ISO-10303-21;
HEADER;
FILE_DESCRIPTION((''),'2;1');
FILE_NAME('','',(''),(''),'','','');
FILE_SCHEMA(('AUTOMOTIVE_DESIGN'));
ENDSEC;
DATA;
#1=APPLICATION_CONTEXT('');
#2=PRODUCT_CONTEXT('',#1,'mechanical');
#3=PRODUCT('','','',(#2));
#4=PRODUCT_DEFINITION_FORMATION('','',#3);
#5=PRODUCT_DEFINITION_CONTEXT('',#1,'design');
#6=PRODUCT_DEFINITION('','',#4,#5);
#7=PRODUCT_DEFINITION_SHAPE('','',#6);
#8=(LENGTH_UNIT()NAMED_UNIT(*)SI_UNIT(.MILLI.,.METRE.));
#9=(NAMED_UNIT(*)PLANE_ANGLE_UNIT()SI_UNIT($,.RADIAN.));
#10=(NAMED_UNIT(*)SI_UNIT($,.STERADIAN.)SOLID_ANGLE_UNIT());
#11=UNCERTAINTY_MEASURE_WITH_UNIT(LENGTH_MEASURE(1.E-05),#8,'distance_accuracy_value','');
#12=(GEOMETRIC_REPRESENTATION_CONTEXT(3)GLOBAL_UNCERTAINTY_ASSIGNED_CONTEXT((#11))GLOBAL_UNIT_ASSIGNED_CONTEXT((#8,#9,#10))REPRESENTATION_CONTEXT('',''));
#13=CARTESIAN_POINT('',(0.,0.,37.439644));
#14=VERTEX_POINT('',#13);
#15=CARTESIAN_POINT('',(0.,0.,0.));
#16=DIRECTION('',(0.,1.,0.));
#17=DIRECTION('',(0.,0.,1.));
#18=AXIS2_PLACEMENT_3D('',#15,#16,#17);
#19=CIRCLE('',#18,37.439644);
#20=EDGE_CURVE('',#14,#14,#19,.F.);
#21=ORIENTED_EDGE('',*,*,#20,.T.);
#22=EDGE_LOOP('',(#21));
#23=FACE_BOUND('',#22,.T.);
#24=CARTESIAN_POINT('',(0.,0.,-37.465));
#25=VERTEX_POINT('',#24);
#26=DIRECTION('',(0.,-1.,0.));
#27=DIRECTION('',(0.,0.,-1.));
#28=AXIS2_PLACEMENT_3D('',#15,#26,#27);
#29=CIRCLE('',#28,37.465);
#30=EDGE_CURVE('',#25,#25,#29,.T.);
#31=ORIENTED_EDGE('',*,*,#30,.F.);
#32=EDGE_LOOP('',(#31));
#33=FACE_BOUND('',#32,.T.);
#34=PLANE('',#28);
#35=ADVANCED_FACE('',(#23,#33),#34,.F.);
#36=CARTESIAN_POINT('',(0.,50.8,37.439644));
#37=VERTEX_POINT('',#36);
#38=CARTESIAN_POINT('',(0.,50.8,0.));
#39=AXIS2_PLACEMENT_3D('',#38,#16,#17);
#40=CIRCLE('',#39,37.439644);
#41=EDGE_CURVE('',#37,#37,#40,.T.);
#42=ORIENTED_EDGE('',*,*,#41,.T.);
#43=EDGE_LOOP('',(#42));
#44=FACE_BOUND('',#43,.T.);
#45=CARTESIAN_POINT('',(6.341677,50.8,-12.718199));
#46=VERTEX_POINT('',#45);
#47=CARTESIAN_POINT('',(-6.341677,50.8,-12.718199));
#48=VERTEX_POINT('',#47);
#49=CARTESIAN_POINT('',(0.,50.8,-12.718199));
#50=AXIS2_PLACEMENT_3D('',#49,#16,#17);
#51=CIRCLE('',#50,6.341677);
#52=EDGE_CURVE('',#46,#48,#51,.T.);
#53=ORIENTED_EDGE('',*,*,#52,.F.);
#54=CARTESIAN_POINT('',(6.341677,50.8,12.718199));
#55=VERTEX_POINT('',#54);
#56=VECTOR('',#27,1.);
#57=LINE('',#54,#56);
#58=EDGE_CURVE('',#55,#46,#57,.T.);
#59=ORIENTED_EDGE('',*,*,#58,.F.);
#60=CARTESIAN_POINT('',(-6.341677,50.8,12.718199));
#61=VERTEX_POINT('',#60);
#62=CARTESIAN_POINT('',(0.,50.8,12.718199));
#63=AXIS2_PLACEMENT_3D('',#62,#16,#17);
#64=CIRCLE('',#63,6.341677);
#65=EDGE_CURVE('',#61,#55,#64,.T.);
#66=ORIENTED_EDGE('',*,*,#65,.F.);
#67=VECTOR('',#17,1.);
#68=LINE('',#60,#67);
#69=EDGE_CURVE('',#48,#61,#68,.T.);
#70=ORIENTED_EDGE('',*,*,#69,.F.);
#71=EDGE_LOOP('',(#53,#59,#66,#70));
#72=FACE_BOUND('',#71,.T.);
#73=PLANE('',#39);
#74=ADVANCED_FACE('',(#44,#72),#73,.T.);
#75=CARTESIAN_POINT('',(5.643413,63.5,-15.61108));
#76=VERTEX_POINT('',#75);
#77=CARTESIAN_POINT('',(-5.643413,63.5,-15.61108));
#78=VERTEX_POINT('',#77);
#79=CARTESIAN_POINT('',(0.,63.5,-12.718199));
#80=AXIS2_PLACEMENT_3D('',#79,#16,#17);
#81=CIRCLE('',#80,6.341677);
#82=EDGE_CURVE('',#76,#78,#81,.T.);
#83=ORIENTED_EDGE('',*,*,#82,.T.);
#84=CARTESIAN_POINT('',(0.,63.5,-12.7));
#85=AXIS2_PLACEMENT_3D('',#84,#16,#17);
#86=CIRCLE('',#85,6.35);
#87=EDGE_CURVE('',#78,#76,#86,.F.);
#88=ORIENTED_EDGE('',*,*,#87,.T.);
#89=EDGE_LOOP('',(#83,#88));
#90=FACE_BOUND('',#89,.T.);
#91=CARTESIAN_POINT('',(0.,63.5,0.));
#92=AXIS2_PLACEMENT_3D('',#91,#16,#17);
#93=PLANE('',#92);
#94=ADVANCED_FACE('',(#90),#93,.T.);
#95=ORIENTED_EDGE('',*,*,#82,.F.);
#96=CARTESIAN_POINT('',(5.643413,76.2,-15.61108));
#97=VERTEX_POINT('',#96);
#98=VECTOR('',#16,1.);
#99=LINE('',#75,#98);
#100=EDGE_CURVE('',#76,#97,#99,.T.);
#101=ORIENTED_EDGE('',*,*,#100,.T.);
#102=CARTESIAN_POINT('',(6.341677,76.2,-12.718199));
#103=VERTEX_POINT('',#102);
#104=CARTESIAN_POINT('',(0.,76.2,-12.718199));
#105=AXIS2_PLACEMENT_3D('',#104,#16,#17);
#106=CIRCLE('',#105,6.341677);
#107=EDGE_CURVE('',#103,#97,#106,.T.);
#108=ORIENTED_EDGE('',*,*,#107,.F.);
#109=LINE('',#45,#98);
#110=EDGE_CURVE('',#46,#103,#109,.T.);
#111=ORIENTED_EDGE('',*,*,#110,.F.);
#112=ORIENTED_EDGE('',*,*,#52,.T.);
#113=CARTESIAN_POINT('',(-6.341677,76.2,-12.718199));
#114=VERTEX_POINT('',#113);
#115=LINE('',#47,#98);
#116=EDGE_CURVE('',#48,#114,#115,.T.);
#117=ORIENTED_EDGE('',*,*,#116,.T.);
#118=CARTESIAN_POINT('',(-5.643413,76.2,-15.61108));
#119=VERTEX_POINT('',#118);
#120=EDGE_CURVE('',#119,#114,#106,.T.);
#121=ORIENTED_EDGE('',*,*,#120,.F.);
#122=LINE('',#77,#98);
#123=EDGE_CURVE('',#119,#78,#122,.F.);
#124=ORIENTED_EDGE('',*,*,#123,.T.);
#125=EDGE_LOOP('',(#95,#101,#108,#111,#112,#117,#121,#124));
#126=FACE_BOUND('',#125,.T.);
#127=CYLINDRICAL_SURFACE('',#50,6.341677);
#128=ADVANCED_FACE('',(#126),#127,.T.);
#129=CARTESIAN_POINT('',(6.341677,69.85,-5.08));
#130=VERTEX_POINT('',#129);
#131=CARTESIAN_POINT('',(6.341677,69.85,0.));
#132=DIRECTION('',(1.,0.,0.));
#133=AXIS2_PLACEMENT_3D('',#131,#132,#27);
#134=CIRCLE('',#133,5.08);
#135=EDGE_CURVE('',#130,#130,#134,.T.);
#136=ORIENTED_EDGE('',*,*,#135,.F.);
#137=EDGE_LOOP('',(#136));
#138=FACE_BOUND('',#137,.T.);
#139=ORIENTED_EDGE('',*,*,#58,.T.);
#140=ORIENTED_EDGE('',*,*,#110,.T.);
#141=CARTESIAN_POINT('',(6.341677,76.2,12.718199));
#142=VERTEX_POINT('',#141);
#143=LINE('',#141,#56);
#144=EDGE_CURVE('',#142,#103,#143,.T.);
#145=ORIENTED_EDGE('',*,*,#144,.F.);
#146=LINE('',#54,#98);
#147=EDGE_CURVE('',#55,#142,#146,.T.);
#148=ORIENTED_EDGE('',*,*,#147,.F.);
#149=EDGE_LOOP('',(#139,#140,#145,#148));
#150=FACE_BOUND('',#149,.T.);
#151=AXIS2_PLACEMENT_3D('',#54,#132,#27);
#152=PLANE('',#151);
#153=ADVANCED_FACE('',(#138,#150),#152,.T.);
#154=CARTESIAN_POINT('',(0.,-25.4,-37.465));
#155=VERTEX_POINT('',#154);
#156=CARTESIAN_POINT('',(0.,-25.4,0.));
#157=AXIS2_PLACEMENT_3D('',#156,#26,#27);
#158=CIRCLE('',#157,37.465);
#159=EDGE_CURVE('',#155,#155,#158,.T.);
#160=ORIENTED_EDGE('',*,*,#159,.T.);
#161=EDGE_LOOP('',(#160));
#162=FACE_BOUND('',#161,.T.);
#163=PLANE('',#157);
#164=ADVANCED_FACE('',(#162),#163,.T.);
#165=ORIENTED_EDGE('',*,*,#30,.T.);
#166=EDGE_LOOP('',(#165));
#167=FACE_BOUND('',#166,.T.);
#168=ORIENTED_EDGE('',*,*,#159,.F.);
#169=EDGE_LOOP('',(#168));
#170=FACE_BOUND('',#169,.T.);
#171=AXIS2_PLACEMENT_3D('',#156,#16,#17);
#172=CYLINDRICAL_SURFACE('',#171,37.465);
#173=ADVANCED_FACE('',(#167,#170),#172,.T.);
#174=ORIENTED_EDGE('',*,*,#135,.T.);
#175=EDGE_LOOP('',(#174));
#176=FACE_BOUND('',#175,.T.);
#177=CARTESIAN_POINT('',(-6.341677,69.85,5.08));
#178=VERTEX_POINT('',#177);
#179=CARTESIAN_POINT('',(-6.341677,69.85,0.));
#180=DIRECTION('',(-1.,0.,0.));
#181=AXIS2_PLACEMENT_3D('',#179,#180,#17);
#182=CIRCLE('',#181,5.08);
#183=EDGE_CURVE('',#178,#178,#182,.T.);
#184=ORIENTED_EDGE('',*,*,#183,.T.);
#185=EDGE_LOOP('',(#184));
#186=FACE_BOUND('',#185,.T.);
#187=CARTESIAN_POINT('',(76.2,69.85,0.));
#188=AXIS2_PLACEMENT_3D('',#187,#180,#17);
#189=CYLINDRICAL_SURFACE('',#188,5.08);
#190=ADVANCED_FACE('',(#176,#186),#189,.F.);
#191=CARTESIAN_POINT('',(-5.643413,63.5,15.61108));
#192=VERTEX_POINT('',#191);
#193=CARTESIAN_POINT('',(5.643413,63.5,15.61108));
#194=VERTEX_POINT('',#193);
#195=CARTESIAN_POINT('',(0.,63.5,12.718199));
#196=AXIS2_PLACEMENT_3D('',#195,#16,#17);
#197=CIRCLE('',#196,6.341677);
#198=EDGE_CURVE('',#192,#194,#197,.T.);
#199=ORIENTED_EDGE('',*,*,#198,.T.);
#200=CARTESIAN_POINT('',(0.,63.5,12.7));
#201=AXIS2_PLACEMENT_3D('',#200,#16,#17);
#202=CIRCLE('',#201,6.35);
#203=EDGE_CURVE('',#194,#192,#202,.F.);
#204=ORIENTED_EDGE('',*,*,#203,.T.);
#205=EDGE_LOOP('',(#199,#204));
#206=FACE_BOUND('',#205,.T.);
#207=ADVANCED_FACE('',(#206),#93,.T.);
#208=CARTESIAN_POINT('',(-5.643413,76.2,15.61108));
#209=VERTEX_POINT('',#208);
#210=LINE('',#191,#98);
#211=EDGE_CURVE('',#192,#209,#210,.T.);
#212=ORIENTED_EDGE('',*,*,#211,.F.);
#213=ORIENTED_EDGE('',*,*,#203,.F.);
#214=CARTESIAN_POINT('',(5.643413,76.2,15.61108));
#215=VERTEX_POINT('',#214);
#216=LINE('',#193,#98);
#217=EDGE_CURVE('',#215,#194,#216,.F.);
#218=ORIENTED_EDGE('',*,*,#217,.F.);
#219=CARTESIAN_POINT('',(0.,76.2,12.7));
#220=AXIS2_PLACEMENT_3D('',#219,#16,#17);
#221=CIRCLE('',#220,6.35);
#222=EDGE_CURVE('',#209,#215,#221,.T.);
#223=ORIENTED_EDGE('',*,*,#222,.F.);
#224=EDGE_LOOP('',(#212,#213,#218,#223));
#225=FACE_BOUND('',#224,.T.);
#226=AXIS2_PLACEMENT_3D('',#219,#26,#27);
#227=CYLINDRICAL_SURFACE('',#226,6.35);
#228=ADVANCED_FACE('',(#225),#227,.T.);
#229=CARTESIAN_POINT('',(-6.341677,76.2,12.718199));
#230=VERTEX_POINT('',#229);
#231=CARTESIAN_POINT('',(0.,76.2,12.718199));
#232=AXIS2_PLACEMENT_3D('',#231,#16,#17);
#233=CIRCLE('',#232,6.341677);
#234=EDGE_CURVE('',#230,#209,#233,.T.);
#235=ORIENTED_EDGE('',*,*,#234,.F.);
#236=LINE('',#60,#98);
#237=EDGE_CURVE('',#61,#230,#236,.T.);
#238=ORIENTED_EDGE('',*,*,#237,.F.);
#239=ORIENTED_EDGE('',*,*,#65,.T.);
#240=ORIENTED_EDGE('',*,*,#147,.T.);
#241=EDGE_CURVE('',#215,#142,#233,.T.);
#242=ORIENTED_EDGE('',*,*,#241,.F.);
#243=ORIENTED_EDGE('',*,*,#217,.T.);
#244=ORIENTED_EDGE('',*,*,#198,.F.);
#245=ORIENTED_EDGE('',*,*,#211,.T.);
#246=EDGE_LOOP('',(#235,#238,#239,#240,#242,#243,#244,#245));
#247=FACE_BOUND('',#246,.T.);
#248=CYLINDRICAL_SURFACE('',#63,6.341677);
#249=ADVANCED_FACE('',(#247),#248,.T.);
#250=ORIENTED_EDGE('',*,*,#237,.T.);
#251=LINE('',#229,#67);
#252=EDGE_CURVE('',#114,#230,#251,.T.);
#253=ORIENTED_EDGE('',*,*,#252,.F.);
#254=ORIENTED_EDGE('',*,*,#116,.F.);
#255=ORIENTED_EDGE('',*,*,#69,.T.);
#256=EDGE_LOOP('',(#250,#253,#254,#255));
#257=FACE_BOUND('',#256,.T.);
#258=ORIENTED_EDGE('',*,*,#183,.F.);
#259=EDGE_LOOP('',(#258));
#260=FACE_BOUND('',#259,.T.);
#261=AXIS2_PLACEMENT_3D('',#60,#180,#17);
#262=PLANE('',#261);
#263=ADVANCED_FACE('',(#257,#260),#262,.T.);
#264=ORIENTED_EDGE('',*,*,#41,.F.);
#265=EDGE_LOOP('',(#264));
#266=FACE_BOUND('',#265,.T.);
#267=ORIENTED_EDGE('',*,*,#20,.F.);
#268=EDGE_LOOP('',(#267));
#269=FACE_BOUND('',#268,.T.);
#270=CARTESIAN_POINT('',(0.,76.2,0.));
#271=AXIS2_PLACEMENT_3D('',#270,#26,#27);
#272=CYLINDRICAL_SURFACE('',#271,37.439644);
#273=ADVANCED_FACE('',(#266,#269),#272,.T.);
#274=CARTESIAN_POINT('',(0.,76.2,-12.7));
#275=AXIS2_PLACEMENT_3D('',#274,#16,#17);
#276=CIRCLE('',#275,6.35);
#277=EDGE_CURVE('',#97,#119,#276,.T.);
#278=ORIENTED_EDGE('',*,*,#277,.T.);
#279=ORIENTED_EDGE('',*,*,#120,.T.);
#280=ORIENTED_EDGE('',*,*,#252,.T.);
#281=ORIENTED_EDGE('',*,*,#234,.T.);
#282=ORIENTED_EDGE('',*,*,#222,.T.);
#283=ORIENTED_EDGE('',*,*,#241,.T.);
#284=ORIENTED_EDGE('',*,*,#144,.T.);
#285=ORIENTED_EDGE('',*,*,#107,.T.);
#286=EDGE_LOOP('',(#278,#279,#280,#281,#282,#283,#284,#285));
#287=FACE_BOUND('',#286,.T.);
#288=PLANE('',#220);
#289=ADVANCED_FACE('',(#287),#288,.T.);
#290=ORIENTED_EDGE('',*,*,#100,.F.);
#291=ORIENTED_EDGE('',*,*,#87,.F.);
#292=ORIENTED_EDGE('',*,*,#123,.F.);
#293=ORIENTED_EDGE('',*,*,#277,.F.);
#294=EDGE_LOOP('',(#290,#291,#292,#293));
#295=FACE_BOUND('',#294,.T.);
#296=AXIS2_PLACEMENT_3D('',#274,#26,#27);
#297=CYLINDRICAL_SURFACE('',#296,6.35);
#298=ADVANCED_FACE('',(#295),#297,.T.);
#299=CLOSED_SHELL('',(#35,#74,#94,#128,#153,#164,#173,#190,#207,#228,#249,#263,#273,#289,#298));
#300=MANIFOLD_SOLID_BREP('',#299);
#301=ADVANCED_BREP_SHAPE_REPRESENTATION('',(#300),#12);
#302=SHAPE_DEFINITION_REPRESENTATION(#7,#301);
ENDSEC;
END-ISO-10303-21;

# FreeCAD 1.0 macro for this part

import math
import FreeCAD as App
import Part
import Sketcher
from FreeCAD import Vector
Q = App.Units.Quantity

doc = App.newDocument("Part")
body = doc.addObject("PartDesign::Body", "Body")

sketch1 = body.newObject("Sketcher::SketchObject", "Sketch")
sketch1.AttachmentSupport = (doc.getObject("XZ_Plane"), [""])
sketch1.MapMode = "FlatFace"
sketch1.addGeometry(Part.Circle(Vector(0, 0, 0), Vector(0, 0, 1), 38), False)
sketch1.addConstraint([
    Sketcher.Constraint("Coincident", 0, 3, -1, 1),
    Sketcher.Constraint("Diameter", 0, Q("3 in")),
])
pad1 = body.newObject("PartDesign::Pad", "Pad")
pad1.Profile = sketch1
pad1.Length = Q("2.5 in")
pad1.Reversed = True

sketch2 = body.newObject("Sketcher::SketchObject", "Sketch001")
sketch2.AttachmentSupport = (doc.getObject("XZ_Plane"), [""])
sketch2.MapMode = "FlatFace"
sketch2.addGeometry([
    Part.LineSegment(Vector(-6, -13, 0), Vector(-6, 13, 0)),
    Part.ArcOfCircle(Part.Circle(Vector(0, 13, 0), Vector(0, 0, 1), 6), math.radians(0), math.radians(180)),
    Part.LineSegment(Vector(6, 13, 0), Vector(6, -13, 0)),
    Part.ArcOfCircle(Part.Circle(Vector(0, -13, 0), Vector(0, 0, 1), 6), math.radians(180), math.radians(360)),
], False)
sketch2.addConstraint([
    Sketcher.Constraint("Tangent", 0, 2, 1, 2),
    Sketcher.Constraint("Tangent", 1, 1, 2, 1),
    Sketcher.Constraint("Tangent", 2, 2, 3, 2),
    Sketcher.Constraint("Tangent", 3, 1, 0, 1),
    Sketcher.Constraint("Vertical", 0),
    Sketcher.Constraint("Vertical", 2),
    Sketcher.Constraint("Symmetric", 1, 3, 3, 3, -1, 1),
    Sketcher.Constraint("DistanceY", 0, 1, 0, 2, Q("1 in")),
    Sketcher.Constraint("Radius", 1, Q("0.25 in")),
])
pad2 = body.newObject("PartDesign::Pad", "Pad001")
pad2.Profile = sketch2
pad2.Length = Q("3 in")
pad2.Reversed = True

sketch3 = body.newObject("Sketcher::SketchObject", "Sketch002")
sketch3.AttachmentSupport = (doc.getObject("YZ_Plane"), [""])
sketch3.MapMode = "FlatFace"
sketch3.addGeometry(Part.Circle(Vector(70, 0, 0), Vector(0, 0, 1), 5), False)
sketch3.addConstraint([
    Sketcher.Constraint("PointOnObject", 0, 3, -1),
    Sketcher.Constraint("Diameter", 0, Q("0.4 in")),
    Sketcher.Constraint("DistanceX", -1, 1, 0, 3, Q("2.75 in")),
])
pocket1 = body.newObject("PartDesign::Pocket", "Pocket")
pocket1.Profile = sketch3
pocket1.Type = "ThroughAll"
pocket1.Midplane = True

sketch4 = body.newObject("Sketcher::SketchObject", "Sketch003")
sketch4.AttachmentSupport = (doc.getObject("XZ_Plane"), [""])
sketch4.MapMode = "FlatFace"
sketch4.addGeometry([
    Part.Circle(Vector(0, 0, 0), Vector(0, 0, 1), 51),
    Part.Circle(Vector(0, 0, 0), Vector(0, 0, 1), 37),
], False)
sketch4.addConstraint([
    Sketcher.Constraint("Coincident", 0, 3, -1, 1),
    Sketcher.Constraint("Coincident", 1, 3, -1, 1),
    Sketcher.Constraint("Diameter", 0, Q("4 in")),
    Sketcher.Constraint("Diameter", 1, 74.879288),
])
pocket2 = body.newObject("PartDesign::Pocket", "Pocket001")
pocket2.Profile = sketch4
pocket2.Type = "ThroughAll"
pocket2.Midplane = True

sketch5 = body.newObject("Sketcher::SketchObject", "Sketch004")
sketch5.AttachmentSupport = (doc.getObject("XZ_Plane"), [""])
sketch5.MapMode = "FlatFace"
sketch5.AttachmentOffset = App.Placement(Vector(0, 0, -3 * 25.4), App.Rotation())
sketch5.addGeometry([
    Part.Circle(Vector(0, 0, 0), Vector(0, 0, 1), 38),
    Part.ArcOfCircle(Part.Circle(Vector(0, 13, 0), Vector(0, 0, 1), 6), math.radians(0), math.radians(180)),
    Part.LineSegment(Vector(-6, 13, 0), Vector(-6, -13, 0)),
    Part.ArcOfCircle(Part.Circle(Vector(0, -13, 0), Vector(0, 0, 1), 6), math.radians(180), math.radians(360)),
    Part.LineSegment(Vector(6, -13, 0), Vector(6, 13, 0)),
], False)
sketch5.addConstraint([
    Sketcher.Constraint("Tangent", 1, 2, 2, 1),
    Sketcher.Constraint("Tangent", 2, 2, 3, 1),
    Sketcher.Constraint("Tangent", 3, 2, 4, 1),
    Sketcher.Constraint("Tangent", 4, 2, 1, 1),
    Sketcher.Constraint("Vertical", 2),
    Sketcher.Constraint("Vertical", 4),
    Sketcher.Constraint("Coincident", 0, 3, -1, 1),
    Sketcher.Constraint("Symmetric", 1, 3, 3, 3, -1, 1),
    Sketcher.Constraint("Diameter", 0, Q("3 in")),
    Sketcher.Constraint("DistanceY", 2, 2, 2, 1, 25.436398),
    Sketcher.Constraint("Radius", 1, 6.341677),
])
pocket3 = body.newObject("PartDesign::Pocket", "Pocket002")
pocket3.Profile = sketch5
pocket3.Length = Q("1 in")
pocket3.Reversed = True

sketch6 = body.newObject("Sketcher::SketchObject", "Sketch005")
sketch6.AttachmentSupport = (doc.getObject("XZ_Plane"), [""])
sketch6.MapMode = "FlatFace"
sketch6.addGeometry(Part.Circle(Vector(0, 0, 0), Vector(0, 0, 1), 37), False)
sketch6.addConstraint([
    Sketcher.Constraint("Coincident", 0, 3, -1, 1),
    Sketcher.Constraint("Diameter", 0, Q("2.95 in")),
])
pad3 = body.newObject("PartDesign::Pad", "Pad002")
pad3.Profile = sketch6
pad3.Length = Q("1 in")

doc.recompute()
